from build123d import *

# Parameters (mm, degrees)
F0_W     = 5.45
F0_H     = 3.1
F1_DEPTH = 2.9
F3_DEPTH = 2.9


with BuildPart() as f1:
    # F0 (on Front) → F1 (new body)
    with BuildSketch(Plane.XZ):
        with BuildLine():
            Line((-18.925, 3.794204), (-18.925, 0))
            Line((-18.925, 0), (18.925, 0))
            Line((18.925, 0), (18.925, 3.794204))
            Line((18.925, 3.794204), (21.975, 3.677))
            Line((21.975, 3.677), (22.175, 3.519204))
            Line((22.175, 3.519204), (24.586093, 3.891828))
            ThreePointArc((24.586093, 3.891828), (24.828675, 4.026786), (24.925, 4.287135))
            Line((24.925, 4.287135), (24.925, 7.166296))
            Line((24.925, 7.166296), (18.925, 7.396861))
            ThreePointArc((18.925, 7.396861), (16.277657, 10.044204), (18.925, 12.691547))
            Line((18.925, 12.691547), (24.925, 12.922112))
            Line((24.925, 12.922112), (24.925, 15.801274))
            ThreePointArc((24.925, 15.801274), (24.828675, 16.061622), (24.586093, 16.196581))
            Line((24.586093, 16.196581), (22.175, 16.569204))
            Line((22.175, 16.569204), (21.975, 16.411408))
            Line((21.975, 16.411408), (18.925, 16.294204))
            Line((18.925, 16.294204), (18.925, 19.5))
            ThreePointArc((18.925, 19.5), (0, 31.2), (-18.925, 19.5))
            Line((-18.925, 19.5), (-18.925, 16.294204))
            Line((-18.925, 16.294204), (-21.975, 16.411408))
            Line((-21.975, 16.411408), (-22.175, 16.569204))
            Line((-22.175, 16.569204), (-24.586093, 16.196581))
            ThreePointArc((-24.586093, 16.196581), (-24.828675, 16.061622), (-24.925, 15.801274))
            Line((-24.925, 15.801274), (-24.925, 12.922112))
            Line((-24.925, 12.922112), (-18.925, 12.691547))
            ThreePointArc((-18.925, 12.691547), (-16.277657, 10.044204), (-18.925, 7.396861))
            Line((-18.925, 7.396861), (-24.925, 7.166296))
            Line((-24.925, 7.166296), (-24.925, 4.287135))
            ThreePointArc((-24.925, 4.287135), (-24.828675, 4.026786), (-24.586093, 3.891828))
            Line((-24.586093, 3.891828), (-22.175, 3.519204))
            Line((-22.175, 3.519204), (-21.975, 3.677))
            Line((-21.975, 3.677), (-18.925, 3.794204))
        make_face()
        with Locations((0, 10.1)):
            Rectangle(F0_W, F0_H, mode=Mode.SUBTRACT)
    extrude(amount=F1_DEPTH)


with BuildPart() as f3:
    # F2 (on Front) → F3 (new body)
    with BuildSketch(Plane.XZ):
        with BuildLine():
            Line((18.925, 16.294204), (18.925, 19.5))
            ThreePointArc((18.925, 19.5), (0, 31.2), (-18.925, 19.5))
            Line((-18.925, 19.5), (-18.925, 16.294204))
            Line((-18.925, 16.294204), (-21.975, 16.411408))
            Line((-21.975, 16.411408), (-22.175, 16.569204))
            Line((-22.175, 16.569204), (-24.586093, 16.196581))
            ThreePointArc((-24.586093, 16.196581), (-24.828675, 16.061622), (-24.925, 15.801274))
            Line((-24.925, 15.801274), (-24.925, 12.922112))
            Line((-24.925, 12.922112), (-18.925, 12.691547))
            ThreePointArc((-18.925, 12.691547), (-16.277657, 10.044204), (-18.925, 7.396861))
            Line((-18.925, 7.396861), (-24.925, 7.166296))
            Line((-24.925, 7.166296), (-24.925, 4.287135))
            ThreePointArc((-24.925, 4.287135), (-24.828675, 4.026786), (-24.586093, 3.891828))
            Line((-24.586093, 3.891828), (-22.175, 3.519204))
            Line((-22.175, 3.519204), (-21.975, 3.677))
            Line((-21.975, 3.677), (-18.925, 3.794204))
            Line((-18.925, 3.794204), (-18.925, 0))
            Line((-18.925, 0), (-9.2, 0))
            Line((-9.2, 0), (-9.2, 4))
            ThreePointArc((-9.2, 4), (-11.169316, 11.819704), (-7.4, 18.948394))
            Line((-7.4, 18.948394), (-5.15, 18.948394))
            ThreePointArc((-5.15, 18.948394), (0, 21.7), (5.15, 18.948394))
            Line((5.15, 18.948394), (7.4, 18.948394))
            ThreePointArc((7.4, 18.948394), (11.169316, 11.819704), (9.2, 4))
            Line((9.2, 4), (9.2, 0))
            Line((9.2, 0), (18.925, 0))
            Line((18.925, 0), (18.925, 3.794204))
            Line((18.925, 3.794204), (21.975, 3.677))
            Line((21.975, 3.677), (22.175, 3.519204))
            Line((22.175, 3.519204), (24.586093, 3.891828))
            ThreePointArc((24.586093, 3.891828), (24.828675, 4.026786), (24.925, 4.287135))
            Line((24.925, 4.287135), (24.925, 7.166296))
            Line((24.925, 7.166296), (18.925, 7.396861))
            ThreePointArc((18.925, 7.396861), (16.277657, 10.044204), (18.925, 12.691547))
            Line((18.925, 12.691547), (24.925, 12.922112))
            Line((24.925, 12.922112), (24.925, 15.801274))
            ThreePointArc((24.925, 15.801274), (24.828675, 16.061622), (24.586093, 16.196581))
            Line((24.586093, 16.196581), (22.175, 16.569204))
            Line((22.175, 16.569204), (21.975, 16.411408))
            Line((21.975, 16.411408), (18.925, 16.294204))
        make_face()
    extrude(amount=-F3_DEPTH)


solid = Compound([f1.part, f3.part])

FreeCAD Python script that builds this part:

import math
import FreeCAD as App
import Part
import Sketcher
Q = App.Units.Quantity

doc = App.newDocument("Part")
body = doc.addObject("PartDesign::Body", "Body")

# Sketch on XZ plane
sketch1 = body.newObject("Sketcher::SketchObject", "Sketch")
sketch1.AttachmentSupport = (doc.getObject("XZ_Plane"), [""])
sketch1.MapMode = "FlatFace"
sketch1.addGeometry([
    Part.LineSegment(App.Vector(-18.93, 3.79, 0), App.Vector(-18.93, 0, 0)),  # 0
    Part.LineSegment(App.Vector(-18.93, 0, 0), App.Vector(18.93, 0, 0)),  # 1
    Part.LineSegment(App.Vector(18.93, 0, 0), App.Vector(18.93, 3.79, 0)),  # 2
    Part.LineSegment(App.Vector(18.93, 3.79, 0), App.Vector(21.98, 3.68, 0)),  # 3
    Part.LineSegment(App.Vector(21.98, 3.68, 0), App.Vector(22.18, 3.52, 0)),  # 4
    Part.LineSegment(App.Vector(22.18, 3.52, 0), App.Vector(24.59, 3.89, 0)),  # 5
    Part.ArcOfCircle(Part.Circle(App.Vector(24.53, 4.29, 0), App.Vector(0, 0, 1), 0.4), math.radians(-81), math.radians(0)),  # 6
    Part.LineSegment(App.Vector(24.93, 4.29, 0), App.Vector(24.93, 7.17, 0)),  # 7
    Part.LineSegment(App.Vector(24.93, 7.17, 0), App.Vector(18.93, 7.4, 0)),  # 8
    Part.ArcOfCircle(Part.Circle(App.Vector(18.93, 10.04, 0), App.Vector(0, 0, 1), 2.65), math.radians(90), math.radians(270)),  # 9
    Part.LineSegment(App.Vector(18.93, 12.69, 0), App.Vector(24.93, 12.92, 0)),  # 10
    Part.LineSegment(App.Vector(24.93, 12.92, 0), App.Vector(24.93, 15.8, 0)),  # 11
    Part.ArcOfCircle(Part.Circle(App.Vector(24.52, 15.8, 0), App.Vector(0, 0, 1), 0.4), math.radians(0), math.radians(81)),  # 12
    Part.LineSegment(App.Vector(24.59, 16.2, 0), App.Vector(22.18, 16.57, 0)),  # 13
    Part.LineSegment(App.Vector(22.18, 16.57, 0), App.Vector(21.98, 16.41, 0)),  # 14
    Part.LineSegment(App.Vector(21.98, 16.41, 0), App.Vector(18.93, 16.29, 0)),  # 15
    Part.LineSegment(App.Vector(18.93, 16.29, 0), App.Vector(18.93, 19.5, 0)),  # 16
    Part.ArcOfCircle(Part.Circle(App.Vector(0, 10.04, 0), App.Vector(0, 0, 1), 21.16), math.radians(27), math.radians(153)),  # 17
    Part.LineSegment(App.Vector(-18.93, 19.5, 0), App.Vector(-18.93, 16.29, 0)),  # 18
    Part.LineSegment(App.Vector(-18.93, 16.29, 0), App.Vector(-21.98, 16.41, 0)),  # 19
    Part.LineSegment(App.Vector(-21.98, 16.41, 0), App.Vector(-22.18, 16.57, 0)),  # 20
    Part.LineSegment(App.Vector(-22.18, 16.57, 0), App.Vector(-24.59, 16.2, 0)),  # 21
    Part.ArcOfCircle(Part.Circle(App.Vector(-24.52, 15.8, 0), App.Vector(0, 0, 1), 0.4), math.radians(99), math.radians(180)),  # 22
    Part.LineSegment(App.Vector(-24.93, 15.8, 0), App.Vector(-24.93, 12.92, 0)),  # 23
    Part.LineSegment(App.Vector(-24.93, 12.92, 0), App.Vector(-18.93, 12.69, 0)),  # 24
    Part.ArcOfCircle(Part.Circle(App.Vector(-18.93, 10.04, 0), App.Vector(0, 0, 1), 2.65), math.radians(-90), math.radians(90)),  # 25
    Part.LineSegment(App.Vector(-18.93, 7.4, 0), App.Vector(-24.93, 7.17, 0)),  # 26
    Part.LineSegment(App.Vector(-24.93, 7.17, 0), App.Vector(-24.93, 4.29, 0)),  # 27
    Part.ArcOfCircle(Part.Circle(App.Vector(-24.53, 4.29, 0), App.Vector(0, 0, 1), 0.4), math.radians(180), math.radians(261)),  # 28
    Part.LineSegment(App.Vector(-24.59, 3.89, 0), App.Vector(-22.18, 3.52, 0)),  # 29
    Part.LineSegment(App.Vector(-22.18, 3.52, 0), App.Vector(-21.98, 3.68, 0)),  # 30
    Part.LineSegment(App.Vector(-21.98, 3.68, 0), App.Vector(-18.93, 3.79, 0)),  # 31
    Part.LineSegment(App.Vector(2.73, 8.55, 0), App.Vector(-2.73, 8.55, 0)),  # 32
    Part.LineSegment(App.Vector(-2.73, 8.55, 0), App.Vector(-2.73, 11.65, 0)),  # 33
    Part.LineSegment(App.Vector(-2.73, 11.65, 0), App.Vector(2.73, 11.65, 0)),  # 34
    Part.LineSegment(App.Vector(2.73, 11.65, 0), App.Vector(2.73, 8.55, 0)),  # 35
], False)
sketch1.addConstraint([
    Sketcher.Constraint("Coincident", 0, 2, 1, 1),
    Sketcher.Constraint("Coincident", 1, 2, 2, 1),
    Sketcher.Constraint("Coincident", 2, 2, 3, 1),
    Sketcher.Constraint("Coincident", 3, 2, 4, 1),
    Sketcher.Constraint("Coincident", 4, 2, 5, 1),
    Sketcher.Constraint("Tangent", 5, 2, 6, 1),
    Sketcher.Constraint("Tangent", 6, 2, 7, 1),
    Sketcher.Constraint("Coincident", 7, 2, 8, 1),
    Sketcher.Constraint("Coincident", 8, 2, 9, 2),
    Sketcher.Constraint("Coincident", 9, 1, 10, 1),
    Sketcher.Constraint("Coincident", 10, 2, 11, 1),
    Sketcher.Constraint("Coincident", 11, 2, 12, 1),
    Sketcher.Constraint("Coincident", 12, 2, 13, 1),
    Sketcher.Constraint("Coincident", 13, 2, 14, 1),
    Sketcher.Constraint("Coincident", 14, 2, 15, 1),
    Sketcher.Constraint("Coincident", 15, 2, 16, 1),
    Sketcher.Constraint("Coincident", 16, 2, 17, 1),
    Sketcher.Constraint("Coincident", 17, 2, 18, 1),
    Sketcher.Constraint("Coincident", 18, 2, 19, 1),
    Sketcher.Constraint("Coincident", 19, 2, 20, 1),
    Sketcher.Constraint("Coincident", 20, 2, 21, 1),
    Sketcher.Constraint("Coincident", 21, 2, 22, 1),
    Sketcher.Constraint("Coincident", 22, 2, 23, 1),
    Sketcher.Constraint("Coincident", 23, 2, 24, 1),
    Sketcher.Constraint("Coincident", 24, 2, 25, 2),
    Sketcher.Constraint("Coincident", 25, 1, 26, 1),
    Sketcher.Constraint("Coincident", 26, 2, 27, 1),
    Sketcher.Constraint("Tangent", 27, 2, 28, 1),
    Sketcher.Constraint("Tangent", 28, 2, 29, 1),
    Sketcher.Constraint("Coincident", 29, 2, 30, 1),
    Sketcher.Constraint("Coincident", 30, 2, 31, 1),
    Sketcher.Constraint("Coincident", 31, 2, 0, 1),
    Sketcher.Constraint("Coincident", 32, 2, 33, 1),
    Sketcher.Constraint("Coincident", 33, 2, 34, 1),
    Sketcher.Constraint("Coincident", 34, 2, 35, 1),
    Sketcher.Constraint("Coincident", 35, 2, 32, 1),
    Sketcher.Constraint("Vertical", 0),
    Sketcher.Constraint("Horizontal", 1),
    Sketcher.Constraint("Vertical", 2),
    Sketcher.Constraint("Vertical", 7),
    Sketcher.Constraint("Vertical", 11),
    Sketcher.Constraint("Vertical", 16),
    Sketcher.Constraint("Vertical", 18),
    Sketcher.Constraint("Vertical", 23),
    Sketcher.Constraint("Vertical", 27),
    Sketcher.Constraint("Horizontal", 32),
    Sketcher.Constraint("Vertical", 33),
    Sketcher.Constraint("Horizontal", 34),
    Sketcher.Constraint("Vertical", 35),
    Sketcher.Constraint("Equal", 12, 22),
    Sketcher.Constraint("Equal", 9, 25),
    Sketcher.Constraint("Equal", 6, 28),
    Sketcher.Constraint("Symmetric", 0, 2, 1, 2, -1, 1),
    Sketcher.Constraint("Symmetric", 12, 3, 22, 3, -2),
    Sketcher.Constraint("Symmetric", 9, 3, 25, 3, -2),
    Sketcher.Constraint("Symmetric", 6, 3, 28, 3, -2),
    Sketcher.Constraint("Symmetric", 16, 2, 17, 2, -2),
    Sketcher.Constraint("Symmetric", 14, 2, 19, 2, -2),
    Sketcher.Constraint("Symmetric", 13, 2, 20, 2, -2),
    Sketcher.Constraint("Symmetric", 4, 2, 29, 2, -2),
    Sketcher.Constraint("Symmetric", 3, 2, 30, 2, -2),
    Sketcher.Constraint("Parallel", 3, 8),
    Sketcher.Constraint("Parallel", 10, 15),
    Sketcher.Constraint("Parallel", 8, 19),
    Sketcher.Constraint("Parallel", 4, 20),
    Sketcher.Constraint("Parallel", 5, 21),
    Sketcher.Constraint("Parallel", 19, 24),
    Sketcher.Constraint("Parallel", 15, 26),
    Sketcher.Constraint("Parallel", 26, 31),
    Sketcher.Constraint("Horizontal", 9, 3, 17, 3),
    Sketcher.Constraint("Horizontal", 22, 3, 11, 2),
    Sketcher.Constraint("Horizontal", 15, 2, 18, 2),
    Sketcher.Constraint("Horizontal", 12, 2, 21, 2),
    Sketcher.Constraint("Horizontal", 11, 2, 22, 2),
    Sketcher.Constraint("Horizontal", 10, 2, 23, 2),
    Sketcher.Constraint("Horizontal", 7, 2, 26, 2),
    Sketcher.Constraint("Vertical", 25, 3, 0, 2),
    Sketcher.Constraint("Vertical", 2, 2, 8, 2),
    Sketcher.Constraint("Vertical", 8, 2, 9, 1),
    Sketcher.Constraint("Vertical", 7, 2, 10, 2),
    Sketcher.Constraint("Vertical", 5, 2, 12, 2),
    Sketcher.Constraint("Vertical", 4, 2, 13, 2),
    Sketcher.Constraint("Vertical", 3, 2, 14, 2),
    Sketcher.Constraint("Vertical", 9, 1, 15, 2),
    Sketcher.Constraint("Equal", 7, 11),
    Sketcher.Constraint("Radius", 6, Q("0.4 mm")),
    Sketcher.Constraint("Radius", 12, Q("0.400002 mm")),
    Sketcher.Constraint("DistanceY", 33, 1, 33, 2, Q("3.1 mm")),
    Sketcher.Constraint("DistanceX", 2, 2, 6, 2, Q("6 mm")),
    Sketcher.Constraint("DistanceX", 1, 1, 1, 2, Q("37.85 mm")),
    Sketcher.Constraint("DistanceX", 32, 2, 32, 1, Q("5.45 mm")),
    Sketcher.Constraint("DistanceY", -1, 1, 16, 2, Q("19.5 mm")),
    Sketcher.Constraint("DistanceX", 3, 2, 4, 2, Q("0.2 mm")),
    Sketcher.Constraint("DistanceX", 25, 1, 32, 2, Q("16.2 mm")),
    Sketcher.Constraint("DistanceY", -1, 1, 32, 2, Q("8.55 mm")),
    Sketcher.Constraint("DistanceY", 2, 2, 9, 3, Q("6.25 mm")),
    Sketcher.Constraint("DistanceX", 3, 2, 6, 3, Q("2.55 mm")),
    Sketcher.Constraint("DistanceY", -1, 1, 3, 2, Q("3.677 mm")),
    Sketcher.Constraint("Radius", 9, Q("2.647343 mm")),
    Sketcher.Constraint("Radius", 17, Q("21.155796 mm")),
    Sketcher.Constraint("DistanceY", 4, 2, 2, 2, Q("0.275 mm")),
    Sketcher.Constraint("DistanceY", 7, 1, 7, 2, Q("2.879161 mm")),
])
pad1 = body.newObject("PartDesign::Pad", "Pad")
pad1.Profile = sketch1
pad1.Length = 2.9
body2 = doc.addObject("PartDesign::Body", "Body001")

# Sketch on XZ plane
sketch2 = body2.newObject("Sketcher::SketchObject", "Sketch001")
sketch2.AttachmentSupport = (doc.getObject("XZ_Plane001"), [""])
sketch2.MapMode = "FlatFace"
sketch2.addGeometry([
    Part.LineSegment(App.Vector(18.93, 16.29, 0), App.Vector(18.93, 19.5, 0)),  # 0
    Part.ArcOfCircle(Part.Circle(App.Vector(0, 10.04, 0), App.Vector(0, 0, 1), 21.16), math.radians(27), math.radians(153)),  # 1
    Part.LineSegment(App.Vector(-18.93, 19.5, 0), App.Vector(-18.93, 16.29, 0)),  # 2
    Part.LineSegment(App.Vector(-18.93, 16.29, 0), App.Vector(-21.98, 16.41, 0)),  # 3
    Part.LineSegment(App.Vector(-21.98, 16.41, 0), App.Vector(-22.18, 16.57, 0)),  # 4
    Part.LineSegment(App.Vector(-22.18, 16.57, 0), App.Vector(-24.59, 16.2, 0)),  # 5
    Part.ArcOfCircle(Part.Circle(App.Vector(-24.52, 15.8, 0), App.Vector(0, 0, 1), 0.4), math.radians(99), math.radians(180)),  # 6
    Part.LineSegment(App.Vector(-24.93, 15.8, 0), App.Vector(-24.93, 12.92, 0)),  # 7
    Part.LineSegment(App.Vector(-24.93, 12.92, 0), App.Vector(-18.93, 12.69, 0)),  # 8
    Part.ArcOfCircle(Part.Circle(App.Vector(-18.93, 10.04, 0), App.Vector(0, 0, 1), 2.65), math.radians(-90), math.radians(90)),  # 9
    Part.LineSegment(App.Vector(-18.93, 7.4, 0), App.Vector(-24.93, 7.17, 0)),  # 10
    Part.LineSegment(App.Vector(-24.93, 7.17, 0), App.Vector(-24.93, 4.29, 0)),  # 11
    Part.ArcOfCircle(Part.Circle(App.Vector(-24.53, 4.29, 0), App.Vector(0, 0, 1), 0.4), math.radians(180), math.radians(261)),  # 12
    Part.LineSegment(App.Vector(-24.59, 3.89, 0), App.Vector(-22.18, 3.52, 0)),  # 13
    Part.LineSegment(App.Vector(-22.18, 3.52, 0), App.Vector(-21.98, 3.68, 0)),  # 14
    Part.LineSegment(App.Vector(-21.98, 3.68, 0), App.Vector(-18.93, 3.79, 0)),  # 15
    Part.LineSegment(App.Vector(-18.93, 3.79, 0), App.Vector(-18.93, 0, 0)),  # 16
    Part.LineSegment(App.Vector(-18.93, 0, 0), App.Vector(-9.2, 0, 0)),  # 17
    Part.LineSegment(App.Vector(-9.2, 0, 0), App.Vector(-9.2, 4, 0)),  # 18
    Part.ArcOfCircle(Part.Circle(App.Vector(0, 10.47, 0), App.Vector(0, 0, 1), 11.25), math.radians(131), math.radians(215)),  # 19
    Part.LineSegment(App.Vector(-7.4, 18.95, 0), App.Vector(-5.15, 18.95, 0)),  # 20
    Part.ArcOfCircle(Part.Circle(App.Vector(0, 15.5, 0), App.Vector(0, 0, 1), 6.2), math.radians(34), math.radians(146)),  # 21
    Part.LineSegment(App.Vector(5.15, 18.95, 0), App.Vector(7.4, 18.95, 0)),  # 22
    Part.ArcOfCircle(Part.Circle(App.Vector(0, 10.47, 0), App.Vector(0, 0, 1), 11.25), math.radians(-35), math.radians(49)),  # 23
    Part.LineSegment(App.Vector(9.2, 4, 0), App.Vector(9.2, 0, 0)),  # 24
    Part.LineSegment(App.Vector(9.2, 0, 0), App.Vector(18.93, 0, 0)),  # 25
    Part.LineSegment(App.Vector(18.93, 0, 0), App.Vector(18.93, 3.79, 0)),  # 26
    Part.LineSegment(App.Vector(18.93, 3.79, 0), App.Vector(21.98, 3.68, 0)),  # 27
    Part.LineSegment(App.Vector(21.98, 3.68, 0), App.Vector(22.18, 3.52, 0)),  # 28
    Part.LineSegment(App.Vector(22.18, 3.52, 0), App.Vector(24.59, 3.89, 0)),  # 29
    Part.ArcOfCircle(Part.Circle(App.Vector(24.53, 4.29, 0), App.Vector(0, 0, 1), 0.4), math.radians(-81), math.radians(0)),  # 30
    Part.LineSegment(App.Vector(24.93, 4.29, 0), App.Vector(24.93, 7.17, 0)),  # 31
    Part.LineSegment(App.Vector(24.93, 7.17, 0), App.Vector(18.93, 7.4, 0)),  # 32
    Part.ArcOfCircle(Part.Circle(App.Vector(18.93, 10.04, 0), App.Vector(0, 0, 1), 2.65), math.radians(90), math.radians(270)),  # 33
    Part.LineSegment(App.Vector(18.93, 12.69, 0), App.Vector(24.93, 12.92, 0)),  # 34
    Part.LineSegment(App.Vector(24.93, 12.92, 0), App.Vector(24.93, 15.8, 0)),  # 35
    Part.ArcOfCircle(Part.Circle(App.Vector(24.52, 15.8, 0), App.Vector(0, 0, 1), 0.4), math.radians(0), math.radians(81)),  # 36
    Part.LineSegment(App.Vector(24.59, 16.2, 0), App.Vector(22.18, 16.57, 0)),  # 37
    Part.LineSegment(App.Vector(22.18, 16.57, 0), App.Vector(21.98, 16.41, 0)),  # 38
    Part.LineSegment(App.Vector(21.98, 16.41, 0), App.Vector(18.93, 16.29, 0)),  # 39
], False)
sketch2.addConstraint([
    Sketcher.Constraint("Coincident", 0, 2, 1, 1),
    Sketcher.Constraint("Coincident", 1, 2, 2, 1),
    Sketcher.Constraint("Coincident", 2, 2, 3, 1),
    Sketcher.Constraint("Coincident", 3, 2, 4, 1),
    Sketcher.Constraint("Coincident", 4, 2, 5, 1),
    Sketcher.Constraint("Coincident", 5, 2, 6, 1),
    Sketcher.Constraint("Coincident", 6, 2, 7, 1),
    Sketcher.Constraint("Coincident", 7, 2, 8, 1),
    Sketcher.Constraint("Coincident", 8, 2, 9, 2),
    Sketcher.Constraint("Coincident", 9, 1, 10, 1),
    Sketcher.Constraint("Coincident", 10, 2, 11, 1),
    Sketcher.Constraint("Tangent", 11, 2, 12, 1),
    Sketcher.Constraint("Tangent", 12, 2, 13, 1),
    Sketcher.Constraint("Coincident", 13, 2, 14, 1),
    Sketcher.Constraint("Coincident", 14, 2, 15, 1),
    Sketcher.Constraint("Coincident", 15, 2, 16, 1),
    Sketcher.Constraint("Coincident", 16, 2, 17, 1),
    Sketcher.Constraint("Coincident", 17, 2, 18, 1),
    Sketcher.Constraint("Coincident", 18, 2, 19, 2),
    Sketcher.Constraint("Coincident", 19, 1, 20, 1),
    Sketcher.Constraint("Coincident", 20, 2, 21, 2),
    Sketcher.Constraint("Coincident", 21, 1, 22, 1),
    Sketcher.Constraint("Coincident", 22, 2, 23, 2),
    Sketcher.Constraint("Coincident", 23, 1, 24, 1),
    Sketcher.Constraint("Coincident", 24, 2, 25, 1),
    Sketcher.Constraint("Coincident", 25, 2, 26, 1),
    Sketcher.Constraint("Coincident", 26, 2, 27, 1),
    Sketcher.Constraint("Coincident", 27, 2, 28, 1),
    Sketcher.Constraint("Coincident", 28, 2, 29, 1),
    Sketcher.Constraint("Tangent", 29, 2, 30, 1),
    Sketcher.Constraint("Tangent", 30, 2, 31, 1),
    Sketcher.Constraint("Coincident", 31, 2, 32, 1),
    Sketcher.Constraint("Coincident", 32, 2, 33, 2),
    Sketcher.Constraint("Coincident", 33, 1, 34, 1),
    Sketcher.Constraint("Coincident", 34, 2, 35, 1),
    Sketcher.Constraint("Coincident", 35, 2, 36, 1),
    Sketcher.Constraint("Coincident", 36, 2, 37, 1),
    Sketcher.Constraint("Coincident", 37, 2, 38, 1),
    Sketcher.Constraint("Coincident", 38, 2, 39, 1),
    Sketcher.Constraint("Coincident", 39, 2, 0, 1),
    Sketcher.Constraint("Vertical", 0),
    Sketcher.Constraint("Vertical", 2),
    Sketcher.Constraint("Vertical", 7),
    Sketcher.Constraint("Vertical", 11),
    Sketcher.Constraint("Vertical", 16),
    Sketcher.Constraint("Horizontal", 17),
    Sketcher.Constraint("Vertical", 18),
    Sketcher.Constraint("Horizontal", 20),
    Sketcher.Constraint("Horizontal", 22),
    Sketcher.Constraint("Vertical", 24),
    Sketcher.Constraint("Horizontal", 25),
    Sketcher.Constraint("Vertical", 26),
    Sketcher.Constraint("Vertical", 31),
    Sketcher.Constraint("Vertical", 35),
    Sketcher.Constraint("Coincident", 23, 3, 19, 3),
    Sketcher.Constraint("Equal", 19, 23),
    Sketcher.Constraint("Equal", 12, 30),
    Sketcher.Constraint("Equal", 9, 33),
    Sketcher.Constraint("Equal", 6, 36),
    Sketcher.Constraint("Symmetric", 17, 2, 24, 2, -1, 1),
    Sketcher.Constraint("Symmetric", 12, 3, 30, 3, -2),
    Sketcher.Constraint("Symmetric", 9, 3, 33, 3, -2),
    Sketcher.Constraint("Symmetric", 6, 3, 36, 3, -2),
    Sketcher.Constraint("Symmetric", 0, 2, 1, 2, -2),
    Sketcher.Constraint("Symmetric", 20, 2, 21, 1, -2),
    Sketcher.Constraint("Symmetric", 16, 2, 25, 2, -2),
    Sketcher.Constraint("Symmetric", 14, 2, 27, 2, -2),
    Sketcher.Constraint("Symmetric", 13, 2, 28, 2, -2),
    Sketcher.Constraint("Symmetric", 4, 2, 37, 2, -2),
    Sketcher.Constraint("Symmetric", 3, 2, 38, 2, -2),
    Sketcher.Constraint("PointOnObject", 19, 3, -2),
    Sketcher.Constraint("Parallel", 3, 8),
    Sketcher.Constraint("Parallel", 10, 15),
    Sketcher.Constraint("Parallel", 8, 27),
    Sketcher.Constraint("Parallel", 4, 28),
    Sketcher.Constraint("Parallel", 5, 29),
    Sketcher.Constraint("Parallel", 27, 32),
    Sketcher.Constraint("Parallel", 15, 34),
    Sketcher.Constraint("Parallel", 34, 39),
    Sketcher.Constraint("Horizontal", 1, 3, 9, 3),
    Sketcher.Constraint("Horizontal", 36, 3, 6, 2),
    Sketcher.Constraint("Horizontal", 15, 2, 26, 2),
    Sketcher.Constraint("Horizontal", 10, 2, 31, 2),
    Sketcher.Constraint("Horizontal", 7, 2, 34, 2),
    Sketcher.Constraint("Horizontal", 6, 2, 35, 2),
    Sketcher.Constraint("Horizontal", 5, 2, 36, 2),
    Sketcher.Constraint("Vertical", 33, 3, 0, 2),
    Sketcher.Constraint("Vertical", 2, 2, 8, 2),
    Sketcher.Constraint("Vertical", 8, 2, 9, 1),
    Sketcher.Constraint("Vertical", 7, 2, 10, 2),
    Sketcher.Constraint("Vertical", 5, 2, 12, 2),
    Sketcher.Constraint("Vertical", 4, 2, 13, 2),
    Sketcher.Constraint("Vertical", 3, 2, 14, 2),
    Sketcher.Constraint("Vertical", 9, 1, 15, 2),
    Sketcher.Constraint("Equal", 7, 11),
    Sketcher.Constraint("Radius", 6, Q("0.400002 mm")),
    Sketcher.Constraint("Radius", 12, Q("0.4 mm")),
    Sketcher.Constraint("DistanceY", 18, 1, 18, 2, Q("4 mm")),
    Sketcher.Constraint("Radius", 19, Q("11.25 mm")),
    Sketcher.Constraint("DistanceX", 6, 2, 2, 2, Q("6 mm")),
    Sketcher.Constraint("DistanceX", 20, 1, 20, 2, Q("2.25 mm")),
    Sketcher.Constraint("DistanceY", -1, 1, 0, 2, Q("19.5 mm")),
    Sketcher.Constraint("DistanceX", 17, 2, -1, 1, Q("9.2 mm")),
    Sketcher.Constraint("DistanceX", 19, 1, -1, 1, Q("7.4 mm")),
    Sketcher.Constraint("DistanceX", 4, 2, 3, 2, Q("0.2 mm")),
    Sketcher.Constraint("DistanceX", 17, 1, 17, 2, Q("9.725 mm")),
    Sketcher.Constraint("Radius", 21, Q("6.195261 mm")),
    Sketcher.Constraint("DistanceY", 9, 3, 2, 2, Q("6.25 mm")),
    Sketcher.Constraint("DistanceX", 6, 3, 3, 2, Q("2.549998 mm")),
    Sketcher.Constraint("DistanceY", -1, 1, 14, 2, Q("3.677 mm")),
    Sketcher.Constraint("Radius", 1, Q("21.155796 mm")),
    Sketcher.Constraint("Radius", 9, Q("2.647343 mm")),
    Sketcher.Constraint("DistanceY", 2, 2, 4, 2, Q("0.275 mm")),
    Sketcher.Constraint("DistanceY", 7, 2, 7, 1, Q("2.879162 mm")),
])
pad2 = body2.newObject("PartDesign::Pad", "Pad001")
pad2.Profile = sketch2
pad2.Length = 2.9
pad2.Reversed = True

doc.recompute()
